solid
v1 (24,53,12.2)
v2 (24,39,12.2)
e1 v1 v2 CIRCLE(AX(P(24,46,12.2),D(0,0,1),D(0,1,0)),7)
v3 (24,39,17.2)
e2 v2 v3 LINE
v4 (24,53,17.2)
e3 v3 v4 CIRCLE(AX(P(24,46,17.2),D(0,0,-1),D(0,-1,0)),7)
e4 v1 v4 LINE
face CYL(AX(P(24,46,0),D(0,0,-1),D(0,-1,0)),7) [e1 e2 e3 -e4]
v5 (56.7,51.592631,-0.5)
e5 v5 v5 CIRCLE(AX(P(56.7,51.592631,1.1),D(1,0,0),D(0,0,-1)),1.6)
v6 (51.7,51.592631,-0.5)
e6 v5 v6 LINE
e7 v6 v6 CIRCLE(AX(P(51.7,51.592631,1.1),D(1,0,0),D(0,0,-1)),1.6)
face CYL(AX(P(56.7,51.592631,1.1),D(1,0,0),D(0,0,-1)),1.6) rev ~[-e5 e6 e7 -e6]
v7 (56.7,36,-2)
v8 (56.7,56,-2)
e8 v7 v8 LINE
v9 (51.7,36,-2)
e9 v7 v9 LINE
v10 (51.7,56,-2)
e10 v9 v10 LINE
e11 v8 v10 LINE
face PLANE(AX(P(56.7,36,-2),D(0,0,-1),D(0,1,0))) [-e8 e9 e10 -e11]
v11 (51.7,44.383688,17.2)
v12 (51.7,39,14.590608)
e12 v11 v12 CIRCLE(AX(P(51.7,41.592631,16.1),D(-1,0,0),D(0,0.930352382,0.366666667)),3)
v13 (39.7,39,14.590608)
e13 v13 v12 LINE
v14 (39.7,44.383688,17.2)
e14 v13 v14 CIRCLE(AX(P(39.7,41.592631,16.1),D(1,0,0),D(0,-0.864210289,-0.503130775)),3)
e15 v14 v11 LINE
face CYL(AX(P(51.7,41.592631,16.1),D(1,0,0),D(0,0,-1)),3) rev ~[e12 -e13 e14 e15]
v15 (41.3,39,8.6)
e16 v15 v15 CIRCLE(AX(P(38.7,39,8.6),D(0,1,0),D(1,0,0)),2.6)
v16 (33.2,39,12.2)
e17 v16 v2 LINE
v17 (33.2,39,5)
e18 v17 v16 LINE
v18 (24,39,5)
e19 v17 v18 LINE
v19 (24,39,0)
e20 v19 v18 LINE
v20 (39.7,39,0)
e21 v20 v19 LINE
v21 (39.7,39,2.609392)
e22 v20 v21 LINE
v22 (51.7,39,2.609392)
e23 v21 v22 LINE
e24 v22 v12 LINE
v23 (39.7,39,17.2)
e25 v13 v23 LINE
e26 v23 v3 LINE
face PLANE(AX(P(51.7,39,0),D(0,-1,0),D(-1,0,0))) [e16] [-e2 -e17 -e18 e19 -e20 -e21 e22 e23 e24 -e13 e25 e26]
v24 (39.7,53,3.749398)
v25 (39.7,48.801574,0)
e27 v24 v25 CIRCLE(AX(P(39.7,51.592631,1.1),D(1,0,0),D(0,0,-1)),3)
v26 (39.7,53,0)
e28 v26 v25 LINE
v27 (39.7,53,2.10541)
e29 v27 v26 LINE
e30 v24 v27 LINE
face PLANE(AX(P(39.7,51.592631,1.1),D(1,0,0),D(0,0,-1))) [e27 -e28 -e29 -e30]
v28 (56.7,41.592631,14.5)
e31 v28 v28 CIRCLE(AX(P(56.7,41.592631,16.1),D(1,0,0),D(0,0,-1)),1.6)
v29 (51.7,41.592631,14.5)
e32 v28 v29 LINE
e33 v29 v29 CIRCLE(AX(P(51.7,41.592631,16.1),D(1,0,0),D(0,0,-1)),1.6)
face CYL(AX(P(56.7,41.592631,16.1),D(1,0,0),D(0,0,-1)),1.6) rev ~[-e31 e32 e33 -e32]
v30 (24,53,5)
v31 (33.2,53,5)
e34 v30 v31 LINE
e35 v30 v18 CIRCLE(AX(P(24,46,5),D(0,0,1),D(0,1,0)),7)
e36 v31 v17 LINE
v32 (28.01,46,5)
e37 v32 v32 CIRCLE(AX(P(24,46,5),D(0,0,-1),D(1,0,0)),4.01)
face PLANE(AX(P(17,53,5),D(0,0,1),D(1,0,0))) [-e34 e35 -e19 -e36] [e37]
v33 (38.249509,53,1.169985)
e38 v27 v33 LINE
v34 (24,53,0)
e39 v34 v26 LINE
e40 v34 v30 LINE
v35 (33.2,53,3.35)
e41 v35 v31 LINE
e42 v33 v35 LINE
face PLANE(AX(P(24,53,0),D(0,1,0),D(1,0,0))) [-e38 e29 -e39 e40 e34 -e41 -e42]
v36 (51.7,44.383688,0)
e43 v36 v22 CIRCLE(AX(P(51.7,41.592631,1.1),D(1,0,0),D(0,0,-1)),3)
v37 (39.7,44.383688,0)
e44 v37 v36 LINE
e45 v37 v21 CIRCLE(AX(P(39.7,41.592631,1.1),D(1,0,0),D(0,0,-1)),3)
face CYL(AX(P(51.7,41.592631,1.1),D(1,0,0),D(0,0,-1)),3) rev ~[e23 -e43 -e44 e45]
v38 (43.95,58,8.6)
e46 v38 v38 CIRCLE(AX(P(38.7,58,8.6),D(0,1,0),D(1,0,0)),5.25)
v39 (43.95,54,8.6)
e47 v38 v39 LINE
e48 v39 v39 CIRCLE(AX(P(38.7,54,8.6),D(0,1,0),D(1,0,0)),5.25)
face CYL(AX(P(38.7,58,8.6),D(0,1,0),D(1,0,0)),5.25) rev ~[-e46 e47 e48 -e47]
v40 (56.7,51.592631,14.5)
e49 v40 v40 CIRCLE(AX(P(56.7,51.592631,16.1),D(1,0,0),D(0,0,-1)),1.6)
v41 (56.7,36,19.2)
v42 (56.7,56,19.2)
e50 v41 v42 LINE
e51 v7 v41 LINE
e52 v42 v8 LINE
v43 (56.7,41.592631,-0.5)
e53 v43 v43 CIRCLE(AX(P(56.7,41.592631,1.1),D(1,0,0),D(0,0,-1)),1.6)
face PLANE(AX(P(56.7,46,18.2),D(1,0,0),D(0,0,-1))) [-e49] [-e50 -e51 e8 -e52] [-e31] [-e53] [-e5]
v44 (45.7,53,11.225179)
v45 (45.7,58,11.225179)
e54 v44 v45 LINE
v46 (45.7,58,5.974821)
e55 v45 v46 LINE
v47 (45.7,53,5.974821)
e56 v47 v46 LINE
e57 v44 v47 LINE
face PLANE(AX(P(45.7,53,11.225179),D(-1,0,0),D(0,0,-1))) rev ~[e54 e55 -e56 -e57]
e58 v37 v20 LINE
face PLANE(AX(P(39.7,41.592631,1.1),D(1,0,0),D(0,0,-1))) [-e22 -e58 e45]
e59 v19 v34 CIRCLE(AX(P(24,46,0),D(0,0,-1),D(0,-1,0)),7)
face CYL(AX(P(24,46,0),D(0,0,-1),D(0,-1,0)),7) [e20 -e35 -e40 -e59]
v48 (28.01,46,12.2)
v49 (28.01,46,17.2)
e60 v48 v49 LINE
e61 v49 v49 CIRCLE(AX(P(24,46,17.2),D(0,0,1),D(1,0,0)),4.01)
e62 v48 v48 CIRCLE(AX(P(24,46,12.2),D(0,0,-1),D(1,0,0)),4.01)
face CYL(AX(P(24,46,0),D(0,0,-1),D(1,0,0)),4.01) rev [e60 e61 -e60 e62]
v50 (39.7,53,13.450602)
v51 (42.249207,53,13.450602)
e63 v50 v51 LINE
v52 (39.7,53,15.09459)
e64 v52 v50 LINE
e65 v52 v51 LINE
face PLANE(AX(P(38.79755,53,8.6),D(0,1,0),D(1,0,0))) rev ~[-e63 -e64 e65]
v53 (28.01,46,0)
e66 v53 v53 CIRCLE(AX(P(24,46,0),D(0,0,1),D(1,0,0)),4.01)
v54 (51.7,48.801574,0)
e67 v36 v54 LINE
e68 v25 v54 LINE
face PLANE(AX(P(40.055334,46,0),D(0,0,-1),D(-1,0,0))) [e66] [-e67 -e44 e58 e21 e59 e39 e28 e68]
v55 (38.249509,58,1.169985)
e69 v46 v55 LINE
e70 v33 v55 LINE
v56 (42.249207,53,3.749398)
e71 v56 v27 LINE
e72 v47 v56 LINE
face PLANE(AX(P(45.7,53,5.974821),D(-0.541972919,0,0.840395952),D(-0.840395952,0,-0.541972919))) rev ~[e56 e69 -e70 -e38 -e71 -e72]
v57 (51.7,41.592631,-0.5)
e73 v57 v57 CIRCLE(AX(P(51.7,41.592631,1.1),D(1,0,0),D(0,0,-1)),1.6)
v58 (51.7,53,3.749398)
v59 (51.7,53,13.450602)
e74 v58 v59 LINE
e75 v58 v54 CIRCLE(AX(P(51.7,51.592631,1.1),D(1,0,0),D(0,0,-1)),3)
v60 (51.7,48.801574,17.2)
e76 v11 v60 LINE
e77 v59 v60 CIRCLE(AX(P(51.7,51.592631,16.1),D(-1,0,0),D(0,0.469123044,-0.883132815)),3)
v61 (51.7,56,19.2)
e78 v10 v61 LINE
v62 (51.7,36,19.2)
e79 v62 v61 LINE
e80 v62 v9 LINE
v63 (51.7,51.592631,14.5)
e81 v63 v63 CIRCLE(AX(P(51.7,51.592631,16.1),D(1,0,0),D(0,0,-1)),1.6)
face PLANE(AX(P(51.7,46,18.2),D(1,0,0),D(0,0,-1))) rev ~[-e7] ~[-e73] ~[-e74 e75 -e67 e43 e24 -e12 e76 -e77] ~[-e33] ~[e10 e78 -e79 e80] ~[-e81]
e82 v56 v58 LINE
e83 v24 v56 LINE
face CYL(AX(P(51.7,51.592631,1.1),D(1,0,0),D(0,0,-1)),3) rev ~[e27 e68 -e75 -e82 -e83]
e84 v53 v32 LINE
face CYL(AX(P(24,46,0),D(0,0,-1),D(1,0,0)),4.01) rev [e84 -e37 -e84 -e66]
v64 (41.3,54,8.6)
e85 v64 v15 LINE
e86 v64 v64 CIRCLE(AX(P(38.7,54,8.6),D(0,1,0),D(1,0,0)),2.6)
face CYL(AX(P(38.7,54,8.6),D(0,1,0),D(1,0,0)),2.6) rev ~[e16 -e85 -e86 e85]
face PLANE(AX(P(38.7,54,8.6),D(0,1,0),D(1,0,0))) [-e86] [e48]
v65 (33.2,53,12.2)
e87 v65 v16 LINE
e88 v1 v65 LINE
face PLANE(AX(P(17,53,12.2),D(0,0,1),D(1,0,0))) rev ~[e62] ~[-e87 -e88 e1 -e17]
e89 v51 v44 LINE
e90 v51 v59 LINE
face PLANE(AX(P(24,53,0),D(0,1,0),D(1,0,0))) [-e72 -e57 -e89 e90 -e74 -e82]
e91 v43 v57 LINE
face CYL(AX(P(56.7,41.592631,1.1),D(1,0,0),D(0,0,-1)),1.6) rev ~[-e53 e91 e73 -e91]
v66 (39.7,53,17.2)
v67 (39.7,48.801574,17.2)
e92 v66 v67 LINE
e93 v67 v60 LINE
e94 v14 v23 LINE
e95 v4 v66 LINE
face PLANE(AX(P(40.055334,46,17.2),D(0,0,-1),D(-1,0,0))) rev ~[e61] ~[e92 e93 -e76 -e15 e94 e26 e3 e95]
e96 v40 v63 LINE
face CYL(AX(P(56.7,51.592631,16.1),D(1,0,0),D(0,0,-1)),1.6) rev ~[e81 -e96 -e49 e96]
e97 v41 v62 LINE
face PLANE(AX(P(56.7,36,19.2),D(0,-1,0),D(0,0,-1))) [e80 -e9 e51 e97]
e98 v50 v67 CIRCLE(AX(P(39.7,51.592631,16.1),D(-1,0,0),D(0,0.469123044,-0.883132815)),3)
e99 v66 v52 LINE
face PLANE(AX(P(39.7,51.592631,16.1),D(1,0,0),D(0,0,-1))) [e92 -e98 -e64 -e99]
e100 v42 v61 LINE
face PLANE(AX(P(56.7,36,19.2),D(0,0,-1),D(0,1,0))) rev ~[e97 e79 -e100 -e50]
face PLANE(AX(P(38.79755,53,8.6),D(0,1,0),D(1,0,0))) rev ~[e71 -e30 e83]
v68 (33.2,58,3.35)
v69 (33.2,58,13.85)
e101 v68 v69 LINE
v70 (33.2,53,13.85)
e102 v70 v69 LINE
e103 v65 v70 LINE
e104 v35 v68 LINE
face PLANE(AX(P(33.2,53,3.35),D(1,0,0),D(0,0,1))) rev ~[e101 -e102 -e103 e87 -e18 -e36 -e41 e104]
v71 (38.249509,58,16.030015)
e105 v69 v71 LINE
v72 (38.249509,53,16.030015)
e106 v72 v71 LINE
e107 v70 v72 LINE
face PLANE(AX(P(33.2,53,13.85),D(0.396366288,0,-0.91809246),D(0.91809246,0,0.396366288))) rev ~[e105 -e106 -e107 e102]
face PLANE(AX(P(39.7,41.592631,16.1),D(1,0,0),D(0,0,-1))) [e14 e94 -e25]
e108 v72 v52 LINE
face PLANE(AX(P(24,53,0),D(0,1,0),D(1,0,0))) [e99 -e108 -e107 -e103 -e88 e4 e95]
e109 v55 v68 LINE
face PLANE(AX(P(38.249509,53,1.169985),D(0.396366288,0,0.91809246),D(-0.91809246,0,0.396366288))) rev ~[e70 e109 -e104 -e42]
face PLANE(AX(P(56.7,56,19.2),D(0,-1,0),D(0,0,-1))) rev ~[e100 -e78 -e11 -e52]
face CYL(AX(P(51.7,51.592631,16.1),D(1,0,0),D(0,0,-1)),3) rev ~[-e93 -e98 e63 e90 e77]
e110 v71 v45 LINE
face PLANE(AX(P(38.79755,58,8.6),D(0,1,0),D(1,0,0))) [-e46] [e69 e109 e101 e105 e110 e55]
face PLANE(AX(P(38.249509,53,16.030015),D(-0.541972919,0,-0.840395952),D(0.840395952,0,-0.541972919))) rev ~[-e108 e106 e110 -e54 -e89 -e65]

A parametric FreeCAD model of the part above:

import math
import FreeCAD as App
import Part
import Sketcher

doc = App.newDocument("Part")
body = doc.addObject("PartDesign::Body", "Body")

# Sketch on XY plane
sketch1 = body.newObject("Sketcher::SketchObject", "Sketch")
sketch1.AttachmentSupport = (doc.getObject("XY_Plane"), [""])
sketch1.MapMode = "FlatFace"
sketch1.addGeometry([
    Part.LineSegment(App.Vector(51.7, 53, 0), App.Vector(24, 53, 0)),  # 0
    Part.ArcOfCircle(Part.Circle(App.Vector(24, 46, 0), App.Vector(0, 0, 1), 7), math.radians(90), math.radians(270)),  # 1
    Part.LineSegment(App.Vector(24, 39, 0), App.Vector(51.7, 39, 0)),  # 2
    Part.LineSegment(App.Vector(51.7, 39, 0), App.Vector(51.7, 36, 0)),  # 3
    Part.LineSegment(App.Vector(51.7, 36, 0), App.Vector(56.7, 36, 0)),  # 4
    Part.LineSegment(App.Vector(56.7, 36, 0), App.Vector(56.7, 56, 0)),  # 5
    Part.LineSegment(App.Vector(56.7, 56, 0), App.Vector(51.7, 56, 0)),  # 6
    Part.LineSegment(App.Vector(51.7, 56, 0), App.Vector(51.7, 53, 0)),  # 7
    Part.Circle(App.Vector(24, 46, 0), App.Vector(0, 0, 1), 4),  # 8
], False)
sketch1.addConstraint([
    Sketcher.Constraint("Tangent", 0, 2, 1, 1),
    Sketcher.Constraint("Tangent", 1, 2, 2, 1),
    Sketcher.Constraint("Coincident", 2, 2, 3, 1),
    Sketcher.Constraint("Coincident", 3, 2, 4, 1),
    Sketcher.Constraint("Coincident", 4, 2, 5, 1),
    Sketcher.Constraint("Coincident", 5, 2, 6, 1),
    Sketcher.Constraint("Coincident", 6, 2, 7, 1),
    Sketcher.Constraint("Coincident", 7, 2, 0, 1),
    Sketcher.Constraint("Horizontal", 0),
    Sketcher.Constraint("Horizontal", 2),
    Sketcher.Constraint("Vertical", 3),
    Sketcher.Constraint("Horizontal", 4),
    Sketcher.Constraint("Vertical", 5),
    Sketcher.Constraint("Horizontal", 6),
    Sketcher.Constraint("Vertical", 7),
    Sketcher.Constraint("Coincident", 8, 3, 1, 3),
    Sketcher.Constraint("Vertical", 3, 2, 6, 2),
    Sketcher.Constraint("Equal", 3, 7),
    Sketcher.Constraint("Radius", 1, 7.0),
    Sketcher.Constraint("Diameter", 8, 8.02),
    Sketcher.Constraint("DistanceX", 4, 1, 4, 2, 5.0),
    Sketcher.Constraint("DistanceY", 3, 2, 3, 1, 3.0),
    Sketcher.Constraint("DistanceX", 0, 2, 0, 1, 27.7),
    Sketcher.Constraint("DistanceX", -1, 1, 1, 3, 24.0),
    Sketcher.Constraint("DistanceY", -1, 1, 1, 3, 46.0),
])
pad1 = body.newObject("PartDesign::Pad", "Pad")
pad1.Profile = sketch1
pad1.Length = 17.2

# Sketch on XZ plane
sketch2 = body.newObject("Sketcher::SketchObject", "Sketch001")
sketch2.AttachmentSupport = (doc.getObject("XZ_Plane"), [""])
sketch2.MapMode = "FlatFace"
sketch2.AttachmentOffset = App.Placement(App.Vector(0, 0, -53), App.Rotation())
sketch2.addGeometry([
    Part.LineSegment(App.Vector(17, 5, 0), App.Vector(17, 12, 0)),
    Part.LineSegment(App.Vector(17, 12, 0), App.Vector(33, 12, 0)),
    Part.LineSegment(App.Vector(33, 12, 0), App.Vector(33, 5, 0)),
    Part.LineSegment(App.Vector(33, 5, 0), App.Vector(17, 5, 0)),
], False)
sketch2.addConstraint([
    Sketcher.Constraint("Coincident", 0, 2, 1, 1),
    Sketcher.Constraint("Coincident", 1, 2, 2, 1),
    Sketcher.Constraint("Coincident", 2, 2, 3, 1),
    Sketcher.Constraint("Coincident", 3, 2, 0, 1),
    Sketcher.Constraint("Vertical", 0),
    Sketcher.Constraint("Horizontal", 1),
    Sketcher.Constraint("Vertical", 2),
    Sketcher.Constraint("Horizontal", 3),
    Sketcher.Constraint("DistanceX", 1, 1, 1, 2, 16.2),
    Sketcher.Constraint("DistanceY", 0, 1, 0, 2, 7.2),
    Sketcher.Constraint("DistanceX", -1, 1, 0, 2, 17.0),
    Sketcher.Constraint("DistanceY", -1, 1, 2, 2, 5.0),
])
pocket1 = body.newObject("PartDesign::Pocket", "Pocket")
pocket1.Profile = sketch2
pocket1.Type = "ThroughAll"
pocket1.Reversed = True

# Sketch on YZ plane
sketch3 = body.newObject("Sketcher::SketchObject", "Sketch002")
sketch3.AttachmentSupport = (doc.getObject("YZ_Plane"), [""])
sketch3.MapMode = "FlatFace"
sketch3.AttachmentOffset = App.Placement(App.Vector(0, 0, 56.7), App.Rotation())
sketch3.addGeometry([
    Part.LineSegment(App.Vector(56, 19.2, 0), App.Vector(36, 19.2, 0)),  # 0
    Part.LineSegment(App.Vector(36, 19.2, 0), App.Vector(36, 17.2, 0)),  # 1
    Part.LineSegment(App.Vector(36, 17.2, 0), App.Vector(56, 17.2, 0)),  # 2
    Part.LineSegment(App.Vector(56, 17.2, 0), App.Vector(56, 19.2, 0)),  # 3
    Part.LineSegment(App.Vector(56, 0, 0), App.Vector(36, 0, 0)),  # 4
    Part.LineSegment(App.Vector(36, 0, 0), App.Vector(36, -2, 0)),  # 5
    Part.LineSegment(App.Vector(36, -2, 0), App.Vector(56, -2, 0)),  # 6
    Part.LineSegment(App.Vector(56, -2, 0), App.Vector(56, 0, 0)),  # 7
], False)
sketch3.addConstraint([
    Sketcher.Constraint("Coincident", 0, 2, 1, 1),
    Sketcher.Constraint("Coincident", 1, 2, 2, 1),
    Sketcher.Constraint("Coincident", 2, 2, 3, 1),
    Sketcher.Constraint("Coincident", 3, 2, 0, 1),
    Sketcher.Constraint("Coincident", 4, 2, 5, 1),
    Sketcher.Constraint("Coincident", 5, 2, 6, 1),
    Sketcher.Constraint("Coincident", 6, 2, 7, 1),
    Sketcher.Constraint("Coincident", 7, 2, 4, 1),
    Sketcher.Constraint("Horizontal", 0),
    Sketcher.Constraint("Vertical", 1),
    Sketcher.Constraint("Horizontal", 2),
    Sketcher.Constraint("Vertical", 3),
    Sketcher.Constraint("Horizontal", 4),
    Sketcher.Constraint("Vertical", 5),
    Sketcher.Constraint("Horizontal", 6),
    Sketcher.Constraint("Vertical", 7),
    Sketcher.Constraint("PointOnObject", 4, 2, -1),
    Sketcher.Constraint("Vertical", 1, 2, 4, 2),
    Sketcher.Constraint("Vertical", 3, 2, 6, 2),
    Sketcher.Constraint("Equal", 3, 5),
    Sketcher.Constraint("DistanceX", 0, 2, 0, 1, 20.0),
    Sketcher.Constraint("DistanceY", 1, 2, 1, 1, 2.0),
    Sketcher.Constraint("DistanceX", -1, 1, 0, 2, 36.0),
    Sketcher.Constraint("DistanceY", -1, 1, 0, 2, 19.2),
])
pad2 = body.newObject("PartDesign::Pad", "Pad001")
pad2.Profile = sketch3
pad2.Length = 5
pad2.Reversed = True

# Sketch on YZ plane
sketch4 = body.newObject("Sketcher::SketchObject", "Sketch003")
sketch4.AttachmentSupport = (doc.getObject("YZ_Plane"), [""])
sketch4.MapMode = "FlatFace"
sketch4.AttachmentOffset = App.Placement(App.Vector(0, 0, 56.7), App.Rotation())
sketch4.addGeometry([
    Part.Circle(App.Vector(51.6, 16.1, 0), App.Vector(0, 0, 1), 1.6),
    Part.Circle(App.Vector(51.6, 1.1, 0), App.Vector(0, 0, 1), 1.6),
    Part.Circle(App.Vector(41.6, 16.1, 0), App.Vector(0, 0, 1), 1.6),
    Part.Circle(App.Vector(41.6, 1.1, 0), App.Vector(0, 0, 1), 1.6),
], False)
sketch4.addConstraint([
    Sketcher.Constraint("Equal", 0, 1),
    Sketcher.Constraint("Equal", 1, 2),
    Sketcher.Constraint("Equal", 2, 3),
    Sketcher.Constraint("Horizontal", 0, 3, 2, 3),
    Sketcher.Constraint("Horizontal", 1, 3, 3, 3),
    Sketcher.Constraint("Vertical", 0, 3, 1, 3),
    Sketcher.Constraint("Vertical", 2, 3, 3, 3),
    Sketcher.Constraint("Diameter", 0, 3.2),
    Sketcher.Constraint("DistanceY", 1, 3, 0, 3, 15.0),
    Sketcher.Constraint("DistanceX", 2, 3, 0, 3, 10.0),
    Sketcher.Constraint("DistanceY", -1, 1, 0, 3, 16.1),
    Sketcher.Constraint("DistanceX", -1, 1, 0, 3, 51.592631),
])
pocket2 = body.newObject("PartDesign::Pocket", "Pocket001")
pocket2.Profile = sketch4
pocket2.Length = 5

# Sketch on YZ plane
sketch5 = body.newObject("Sketcher::SketchObject", "Sketch004")
sketch5.AttachmentSupport = (doc.getObject("YZ_Plane"), [""])
sketch5.MapMode = "FlatFace"
sketch5.AttachmentOffset = App.Placement(App.Vector(0, 0, 51.7), App.Rotation())
sketch5.addGeometry([
    Part.Circle(App.Vector(51.6, 16.1, 0), App.Vector(0, 0, 1), 3),
    Part.Circle(App.Vector(41.6, 16.1, 0), App.Vector(0, 0, 1), 3),
    Part.Circle(App.Vector(51.6, 1.1, 0), App.Vector(0, 0, 1), 3),
    Part.Circle(App.Vector(41.6, 1.1, 0), App.Vector(0, 0, 1), 3),
], False)
sketch5.addConstraint([
    Sketcher.Constraint("Equal", 0, 1),
    Sketcher.Constraint("Equal", 1, 2),
    Sketcher.Constraint("Equal", 2, 3),
    Sketcher.Constraint("Horizontal", 0, 3, 1, 3),
    Sketcher.Constraint("Horizontal", 2, 3, 3, 3),
    Sketcher.Constraint("Vertical", 0, 3, 2, 3),
    Sketcher.Constraint("Vertical", 1, 3, 3, 3),
    Sketcher.Constraint("Diameter", 0, 6.0),
    Sketcher.Constraint("DistanceX", 1, 3, 0, 3, 10.0),
    Sketcher.Constraint("DistanceY", 2, 3, 0, 3, 15.0),
    Sketcher.Constraint("DistanceY", -1, 1, 0, 3, 16.1),
    Sketcher.Constraint("DistanceX", -1, 1, 0, 3, 51.592631),
])
pocket3 = body.newObject("PartDesign::Pocket", "Pocket002")
pocket3.Profile = sketch5
pocket3.Length = 12

# Sketch on XZ plane
sketch6 = body.newObject("Sketcher::SketchObject", "Sketch005")
sketch6.AttachmentSupport = (doc.getObject("XZ_Plane"), [""])
sketch6.MapMode = "FlatFace"
sketch6.AttachmentOffset = App.Placement(App.Vector(0, 0, -53), App.Rotation())
sketch6.addGeometry([
    Part.LineSegment(App.Vector(33, 3, 0), App.Vector(33, 14, 0)),  # 0
    Part.LineSegment(App.Vector(33, 14, 0), App.Vector(38, 16, 0)),  # 1
    Part.LineSegment(App.Vector(38, 16, 0), App.Vector(46, 11, 0)),  # 2
    Part.LineSegment(App.Vector(46, 11, 0), App.Vector(46, 6, 0)),  # 3
    Part.LineSegment(App.Vector(46, 6, 0), App.Vector(38, 1, 0)),  # 4
    Part.LineSegment(App.Vector(38, 1, 0), App.Vector(33, 3, 0)),  # 5
], False)
sketch6.addConstraint([
    Sketcher.Constraint("Coincident", 0, 2, 1, 1),
    Sketcher.Constraint("Coincident", 1, 2, 2, 1),
    Sketcher.Constraint("Coincident", 2, 2, 3, 1),
    Sketcher.Constraint("Coincident", 3, 2, 4, 1),
    Sketcher.Constraint("Coincident", 4, 2, 5, 1),
    Sketcher.Constraint("Coincident", 5, 2, 0, 1),
    Sketcher.Constraint("Vertical", 0),
    Sketcher.Constraint("Vertical", 3),
    Sketcher.Constraint("Vertical", 1, 2, 4, 2),
    Sketcher.Constraint("Equal", 2, 4),
    Sketcher.Constraint("Equal", 1, 5),
    Sketcher.Constraint("DistanceY", 0, 1, 0, 2, 10.5),
    Sketcher.Constraint("Distance", 1, 5.5),
    Sketcher.Constraint("DistanceX", -1, 1, 0, 2, 33.2),
    Sketcher.Constraint("DistanceX", -1, 1, 2, 2, 45.7),
    Sketcher.Constraint("DistanceY", -1, 1, 0, 2, 13.85),
    Sketcher.Constraint("DistanceY", 3, 2, 3, 1, 5.250357),
    Sketcher.Constraint("DistanceX", -1, 1, 1, 2, 38.249509),
])
pad3 = body.newObject("PartDesign::Pad", "Pad002")
pad3.Profile = sketch6
pad3.Length = 5
pad3.Reversed = True

# Sketch on XZ plane
sketch7 = body.newObject("Sketcher::SketchObject", "Sketch006")
sketch7.AttachmentSupport = (doc.getObject("XZ_Plane"), [""])
sketch7.MapMode = "FlatFace"
sketch7.AttachmentOffset = App.Placement(App.Vector(0, 0, -58), App.Rotation())
sketch7.addGeometry(Part.Circle(App.Vector(39, 9, 0), App.Vector(0, 0, 1), 5), False)
sketch7.addConstraint([
    Sketcher.Constraint("Diameter", 0, 10.5),
    Sketcher.Constraint("DistanceX", -1, 1, 0, 3, 38.7),
    Sketcher.Constraint("DistanceY", -1, 1, 0, 3, 8.6),
])
pocket4 = body.newObject("PartDesign::Pocket", "Pocket003")
pocket4.Profile = sketch7
pocket4.Length = 4
pocket4.Reversed = True

# Sketch on XZ plane
sketch8 = body.newObject("Sketcher::SketchObject", "Sketch007")
sketch8.AttachmentSupport = (doc.getObject("XZ_Plane"), [""])
sketch8.MapMode = "FlatFace"
sketch8.AttachmentOffset = App.Placement(App.Vector(0, 0, -54), App.Rotation())
sketch8.addGeometry(Part.Circle(App.Vector(38.7, 8.6, 0), App.Vector(0, 0, 1), 2.6), False)
sketch8.addConstraint([
    Sketcher.Constraint("Diameter", 0, 5.2),
    Sketcher.Constraint("DistanceX", -1, 1, 0, 3, 38.7),
    Sketcher.Constraint("DistanceY", -1, 1, 0, 3, 8.6),
])
pocket5 = body.newObject("PartDesign::Pocket", "Pocket004")
pocket5.Profile = sketch8
pocket5.Type = "UpToFirst"
pocket5.Reversed = True

doc.recompute()
